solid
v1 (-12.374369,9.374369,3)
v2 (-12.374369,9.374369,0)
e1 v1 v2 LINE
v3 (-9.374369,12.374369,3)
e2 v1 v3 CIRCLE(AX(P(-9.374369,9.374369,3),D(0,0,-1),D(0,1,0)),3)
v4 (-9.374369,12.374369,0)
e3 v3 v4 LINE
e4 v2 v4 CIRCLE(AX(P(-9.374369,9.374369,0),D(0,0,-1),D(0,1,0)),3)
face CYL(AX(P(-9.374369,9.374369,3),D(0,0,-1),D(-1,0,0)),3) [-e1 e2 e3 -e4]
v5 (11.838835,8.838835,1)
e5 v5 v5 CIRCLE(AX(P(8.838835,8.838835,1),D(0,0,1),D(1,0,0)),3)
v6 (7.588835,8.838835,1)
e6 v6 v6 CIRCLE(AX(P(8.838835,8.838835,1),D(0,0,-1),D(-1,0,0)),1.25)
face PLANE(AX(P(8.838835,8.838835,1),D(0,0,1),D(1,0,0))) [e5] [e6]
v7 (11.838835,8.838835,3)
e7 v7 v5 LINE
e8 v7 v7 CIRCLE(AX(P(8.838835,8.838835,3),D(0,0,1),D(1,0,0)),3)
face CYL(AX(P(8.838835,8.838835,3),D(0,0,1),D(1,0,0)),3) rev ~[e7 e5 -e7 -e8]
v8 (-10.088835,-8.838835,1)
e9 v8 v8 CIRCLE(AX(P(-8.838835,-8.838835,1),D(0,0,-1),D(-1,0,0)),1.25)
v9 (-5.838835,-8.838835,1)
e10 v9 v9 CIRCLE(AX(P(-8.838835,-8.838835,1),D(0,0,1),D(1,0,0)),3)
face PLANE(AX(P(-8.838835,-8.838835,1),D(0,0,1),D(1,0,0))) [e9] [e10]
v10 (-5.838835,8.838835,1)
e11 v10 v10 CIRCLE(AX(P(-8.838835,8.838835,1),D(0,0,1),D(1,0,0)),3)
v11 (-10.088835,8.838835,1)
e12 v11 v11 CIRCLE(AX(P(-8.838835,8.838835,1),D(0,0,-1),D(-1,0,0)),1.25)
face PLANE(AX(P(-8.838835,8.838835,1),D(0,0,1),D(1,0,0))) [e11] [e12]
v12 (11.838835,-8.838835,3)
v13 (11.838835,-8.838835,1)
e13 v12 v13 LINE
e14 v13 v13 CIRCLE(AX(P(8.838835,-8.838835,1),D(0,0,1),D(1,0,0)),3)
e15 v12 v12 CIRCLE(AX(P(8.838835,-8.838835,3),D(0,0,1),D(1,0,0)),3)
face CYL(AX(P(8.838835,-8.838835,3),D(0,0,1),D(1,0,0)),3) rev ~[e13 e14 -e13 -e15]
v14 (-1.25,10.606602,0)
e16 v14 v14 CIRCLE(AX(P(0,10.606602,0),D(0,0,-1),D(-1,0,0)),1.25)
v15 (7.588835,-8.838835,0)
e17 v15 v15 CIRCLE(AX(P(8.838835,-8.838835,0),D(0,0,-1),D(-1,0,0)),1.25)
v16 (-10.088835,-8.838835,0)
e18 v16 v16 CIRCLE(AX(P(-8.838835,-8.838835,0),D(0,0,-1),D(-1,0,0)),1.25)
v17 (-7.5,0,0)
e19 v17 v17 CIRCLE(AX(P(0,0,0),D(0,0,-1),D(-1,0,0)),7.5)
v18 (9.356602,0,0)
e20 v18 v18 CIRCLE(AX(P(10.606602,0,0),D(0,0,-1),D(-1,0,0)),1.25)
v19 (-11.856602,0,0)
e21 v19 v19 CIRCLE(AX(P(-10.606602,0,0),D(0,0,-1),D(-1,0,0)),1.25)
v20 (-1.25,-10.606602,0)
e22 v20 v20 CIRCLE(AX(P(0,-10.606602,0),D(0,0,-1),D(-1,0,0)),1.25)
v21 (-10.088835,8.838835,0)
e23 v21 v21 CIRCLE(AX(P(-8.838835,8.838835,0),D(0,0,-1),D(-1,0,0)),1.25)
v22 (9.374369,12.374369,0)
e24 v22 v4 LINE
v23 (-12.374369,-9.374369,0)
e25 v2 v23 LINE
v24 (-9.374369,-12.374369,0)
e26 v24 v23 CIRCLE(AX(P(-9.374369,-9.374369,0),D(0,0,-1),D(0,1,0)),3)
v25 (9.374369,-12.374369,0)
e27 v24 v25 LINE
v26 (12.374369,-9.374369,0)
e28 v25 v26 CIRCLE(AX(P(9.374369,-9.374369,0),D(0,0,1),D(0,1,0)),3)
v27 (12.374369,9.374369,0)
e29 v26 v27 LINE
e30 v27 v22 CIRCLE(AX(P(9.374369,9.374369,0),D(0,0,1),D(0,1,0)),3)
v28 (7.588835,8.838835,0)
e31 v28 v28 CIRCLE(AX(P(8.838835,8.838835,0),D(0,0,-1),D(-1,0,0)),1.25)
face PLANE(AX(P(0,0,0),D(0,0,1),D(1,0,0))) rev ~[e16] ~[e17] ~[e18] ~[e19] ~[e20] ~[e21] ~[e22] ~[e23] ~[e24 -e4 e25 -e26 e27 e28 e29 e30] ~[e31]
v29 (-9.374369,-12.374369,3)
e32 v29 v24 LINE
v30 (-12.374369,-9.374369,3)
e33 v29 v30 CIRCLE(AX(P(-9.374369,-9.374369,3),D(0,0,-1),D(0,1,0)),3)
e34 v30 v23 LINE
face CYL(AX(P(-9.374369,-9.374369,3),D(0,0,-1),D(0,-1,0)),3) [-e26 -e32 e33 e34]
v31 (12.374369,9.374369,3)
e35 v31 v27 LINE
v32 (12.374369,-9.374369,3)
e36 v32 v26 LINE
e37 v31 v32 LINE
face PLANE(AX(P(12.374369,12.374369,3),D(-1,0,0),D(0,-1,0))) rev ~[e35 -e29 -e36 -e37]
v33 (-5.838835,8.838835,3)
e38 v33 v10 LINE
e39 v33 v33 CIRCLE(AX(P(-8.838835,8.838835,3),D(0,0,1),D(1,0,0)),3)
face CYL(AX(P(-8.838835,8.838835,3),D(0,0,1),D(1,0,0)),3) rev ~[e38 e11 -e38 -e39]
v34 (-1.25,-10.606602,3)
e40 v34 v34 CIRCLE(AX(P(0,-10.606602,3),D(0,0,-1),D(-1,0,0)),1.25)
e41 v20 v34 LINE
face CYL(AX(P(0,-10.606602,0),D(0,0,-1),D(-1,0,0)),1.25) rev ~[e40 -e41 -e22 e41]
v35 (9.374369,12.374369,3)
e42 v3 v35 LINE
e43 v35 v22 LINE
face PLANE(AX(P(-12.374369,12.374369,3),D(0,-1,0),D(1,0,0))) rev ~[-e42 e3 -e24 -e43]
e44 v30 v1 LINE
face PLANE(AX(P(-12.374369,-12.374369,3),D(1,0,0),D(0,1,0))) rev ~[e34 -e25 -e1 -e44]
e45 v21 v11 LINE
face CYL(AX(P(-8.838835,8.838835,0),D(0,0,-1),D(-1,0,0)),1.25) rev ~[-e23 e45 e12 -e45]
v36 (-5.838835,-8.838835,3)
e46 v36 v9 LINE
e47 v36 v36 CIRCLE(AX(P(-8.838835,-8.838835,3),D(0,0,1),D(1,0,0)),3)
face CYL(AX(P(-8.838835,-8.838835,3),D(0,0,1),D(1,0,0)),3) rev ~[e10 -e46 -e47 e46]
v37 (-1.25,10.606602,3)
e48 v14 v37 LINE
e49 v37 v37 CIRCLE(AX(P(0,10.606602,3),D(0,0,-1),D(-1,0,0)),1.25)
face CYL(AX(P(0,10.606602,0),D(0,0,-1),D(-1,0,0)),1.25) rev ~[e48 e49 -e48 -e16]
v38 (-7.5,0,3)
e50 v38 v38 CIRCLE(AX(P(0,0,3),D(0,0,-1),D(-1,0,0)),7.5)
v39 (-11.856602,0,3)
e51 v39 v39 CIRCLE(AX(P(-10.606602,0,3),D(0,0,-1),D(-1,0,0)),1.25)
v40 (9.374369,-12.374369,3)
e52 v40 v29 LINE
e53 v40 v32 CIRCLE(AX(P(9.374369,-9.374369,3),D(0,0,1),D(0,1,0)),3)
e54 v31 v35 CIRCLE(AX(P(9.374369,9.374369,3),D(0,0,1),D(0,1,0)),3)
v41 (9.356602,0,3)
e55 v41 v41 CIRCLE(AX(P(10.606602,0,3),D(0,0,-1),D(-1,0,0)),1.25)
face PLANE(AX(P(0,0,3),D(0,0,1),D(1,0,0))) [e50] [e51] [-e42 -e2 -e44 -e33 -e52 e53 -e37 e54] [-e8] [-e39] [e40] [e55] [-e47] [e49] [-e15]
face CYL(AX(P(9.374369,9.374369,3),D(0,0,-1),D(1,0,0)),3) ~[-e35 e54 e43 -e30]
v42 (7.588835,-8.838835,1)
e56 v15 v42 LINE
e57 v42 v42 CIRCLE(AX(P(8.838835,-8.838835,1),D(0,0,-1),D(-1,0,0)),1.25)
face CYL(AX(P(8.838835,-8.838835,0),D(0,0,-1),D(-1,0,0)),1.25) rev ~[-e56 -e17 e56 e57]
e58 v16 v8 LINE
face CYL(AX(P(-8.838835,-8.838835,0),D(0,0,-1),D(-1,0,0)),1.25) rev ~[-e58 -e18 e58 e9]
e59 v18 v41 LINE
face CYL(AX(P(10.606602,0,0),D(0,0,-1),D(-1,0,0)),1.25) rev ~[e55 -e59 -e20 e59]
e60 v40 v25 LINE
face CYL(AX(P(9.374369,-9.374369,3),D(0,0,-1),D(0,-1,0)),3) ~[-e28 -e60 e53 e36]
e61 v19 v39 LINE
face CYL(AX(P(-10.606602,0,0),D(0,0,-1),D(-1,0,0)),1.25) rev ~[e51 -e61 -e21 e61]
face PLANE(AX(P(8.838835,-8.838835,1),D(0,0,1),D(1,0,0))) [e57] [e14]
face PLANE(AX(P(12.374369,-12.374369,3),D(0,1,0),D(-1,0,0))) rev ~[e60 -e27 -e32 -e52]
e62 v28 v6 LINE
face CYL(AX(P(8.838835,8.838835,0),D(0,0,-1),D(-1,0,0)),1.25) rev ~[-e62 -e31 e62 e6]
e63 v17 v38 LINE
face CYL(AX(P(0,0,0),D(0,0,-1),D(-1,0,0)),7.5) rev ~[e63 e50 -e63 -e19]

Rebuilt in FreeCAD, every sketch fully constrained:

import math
import FreeCAD as App
import Part
import Sketcher
Q = App.Units.Quantity


def edges_at(feature, points):
    """Names of the edges that pass closest to the given points."""
    edges = feature.Shape.Edges
    near = lambda p: min(range(len(edges)), key=lambda i: edges[i].distToShape(Part.Vertex(*p))[0])
    return sorted({f"Edge{near(p) + 1}" for p in points})

doc = App.newDocument("Part")
params = doc.addObject("Spreadsheet::Sheet", "Params")
for row, (alias, value) in enumerate([
    ("sketch1_diameter", "35 mm"),
    ("pad1_length", "3 mm"),
    ("sketch2_diameter", "2.5 mm"),
    ("sketch3_diameter", "2.5 mm"),
    ("sketch4_diameter", "2.5 mm"),
    ("sketch5_diameter", "2.5 mm"),
    ("sketch6_diameter", "2.5 mm"),
    ("sketch7_diameter", "2.5 mm"),
    ("sketch8_diameter", "2.5 mm"),
    ("sketch9_diameter", "2.5 mm"),
    ("sketch10_diameter", "15 mm"),
    ("sketch11_radius", "17.5 mm"),
    ("sketch12_radius", "17.5 mm"),
    ("sketch13_radius", "17.5 mm"),
    ("sketch14_radius", "17.5 mm"),
    ("fillet_radius", "3 mm"),
    ("sketch15_diameter", "6 mm"),
    ("pocket14_length", "2 mm"),
], start=1):
    params.set(f"A{row}", alias)
    params.set(f"B{row}", "=" + value)
    params.setAlias(f"B{row}", alias)

body = doc.addObject("PartDesign::Body", "Body")

sketch1 = doc.addObject("Sketcher::SketchObject", "Sketch")
body.addObject(sketch1)
sketch1.AttachmentSupport = (doc.XY_Plane, [""])
sketch1.MapMode = "FlatFace"
sketch1.addGeometry(Part.Circle(App.Vector(0, 0, 0), App.Vector(0, 0, 1), 18), False)
sketch1.addConstraint(Sketcher.Constraint("Coincident", 0, 3, -1, 1))
sketch1.addConstraint(Sketcher.Constraint("Diameter", 0, Q("35 mm")))
sketch1.setExpression("Constraints[1]", "Params.sketch1_diameter")
pad1 = doc.addObject("PartDesign::Pad", "Pad")
body.addObject(pad1)
pad1.Profile = sketch1
pad1.setExpression("Length", "Params.pad1_length")

sketch2 = doc.addObject("Sketcher::SketchObject", "Sketch001")
body.addObject(sketch2)
sketch2.AttachmentSupport = (doc.XY_Plane, [""])
sketch2.MapMode = "FlatFace"
sketch2.addGeometry(Part.Circle(App.Vector(8.8, 8.8, 0), App.Vector(0, 0, 1), 1.2), False)
sketch2.addConstraint(Sketcher.Constraint("Diameter", 0, Q("2.5 mm")))
sketch2.addConstraint(Sketcher.Constraint("DistanceX", -1, 1, 0, 3, Q("8.838835 mm")))
sketch2.addConstraint(Sketcher.Constraint("DistanceY", -1, 1, 0, 3, Q("8.838835 mm")))
sketch2.setExpression("Constraints[0]", "Params.sketch2_diameter")
pocket1 = doc.addObject("PartDesign::Pocket", "Pocket")
body.addObject(pocket1)
pocket1.Profile = sketch2
pocket1.Type = "UpToFirst"
pocket1.Reversed = True

sketch3 = doc.addObject("Sketcher::SketchObject", "Sketch002")
body.addObject(sketch3)
sketch3.AttachmentSupport = (doc.XY_Plane, [""])
sketch3.MapMode = "FlatFace"
sketch3.addGeometry(Part.Circle(App.Vector(-8.8, 8.8, 0), App.Vector(0, 0, 1), 1.2), False)
sketch3.addConstraint(Sketcher.Constraint("Diameter", 0, Q("2.5 mm")))
sketch3.addConstraint(Sketcher.Constraint("DistanceX", 0, 3, -1, 1, Q("8.838835 mm")))
sketch3.addConstraint(Sketcher.Constraint("DistanceY", -1, 1, 0, 3, Q("8.838835 mm")))
sketch3.setExpression("Constraints[0]", "Params.sketch3_diameter")
pocket2 = doc.addObject("PartDesign::Pocket", "Pocket001")
body.addObject(pocket2)
pocket2.Profile = sketch3
pocket2.Type = "UpToFirst"
pocket2.Reversed = True

sketch4 = doc.addObject("Sketcher::SketchObject", "Sketch003")
body.addObject(sketch4)
sketch4.AttachmentSupport = (doc.XY_Plane, [""])
sketch4.MapMode = "FlatFace"
sketch4.addGeometry(Part.Circle(App.Vector(-8.8, -8.8, 0), App.Vector(0, 0, 1), 1.2), False)
sketch4.addConstraint(Sketcher.Constraint("Diameter", 0, Q("2.5 mm")))
sketch4.addConstraint(Sketcher.Constraint("DistanceX", 0, 3, -1, 1, Q("8.838835 mm")))
sketch4.addConstraint(Sketcher.Constraint("DistanceY", 0, 3, -1, 1, Q("8.838835 mm")))
sketch4.setExpression("Constraints[0]", "Params.sketch4_diameter")
pocket3 = doc.addObject("PartDesign::Pocket", "Pocket002")
body.addObject(pocket3)
pocket3.Profile = sketch4
pocket3.Type = "UpToFirst"
pocket3.Reversed = True

sketch5 = doc.addObject("Sketcher::SketchObject", "Sketch004")
body.addObject(sketch5)
sketch5.AttachmentSupport = (doc.XY_Plane, [""])
sketch5.MapMode = "FlatFace"
sketch5.addGeometry(Part.Circle(App.Vector(8.8, -8.8, 0), App.Vector(0, 0, 1), 1.2), False)
sketch5.addConstraint(Sketcher.Constraint("Diameter", 0, Q("2.5 mm")))
sketch5.addConstraint(Sketcher.Constraint("DistanceX", -1, 1, 0, 3, Q("8.838835 mm")))
sketch5.addConstraint(Sketcher.Constraint("DistanceY", 0, 3, -1, 1, Q("8.838835 mm")))
sketch5.setExpression("Constraints[0]", "Params.sketch5_diameter")
pocket4 = doc.addObject("PartDesign::Pocket", "Pocket003")
body.addObject(pocket4)
pocket4.Profile = sketch5
pocket4.Type = "UpToFirst"
pocket4.Reversed = True

sketch6 = doc.addObject("Sketcher::SketchObject", "Sketch005")
body.addObject(sketch6)
sketch6.AttachmentSupport = (doc.XY_Plane, [""])
sketch6.MapMode = "FlatFace"
sketch6.addGeometry(Part.Circle(App.Vector(0, 10.6, 0), App.Vector(0, 0, 1), 1.2), False)
sketch6.addConstraint(Sketcher.Constraint("PointOnObject", 0, 3, -2))
sketch6.addConstraint(Sketcher.Constraint("Diameter", 0, Q("2.5 mm")))
sketch6.addConstraint(Sketcher.Constraint("DistanceY", -1, 1, 0, 3, Q("10.606602 mm")))
sketch6.setExpression("Constraints[1]", "Params.sketch6_diameter")
pocket5 = doc.addObject("PartDesign::Pocket", "Pocket004")
body.addObject(pocket5)
pocket5.Profile = sketch6
pocket5.Type = "UpToFirst"
pocket5.Reversed = True

sketch7 = doc.addObject("Sketcher::SketchObject", "Sketch006")
body.addObject(sketch7)
sketch7.AttachmentSupport = (doc.XY_Plane, [""])
sketch7.MapMode = "FlatFace"
sketch7.addGeometry(Part.Circle(App.Vector(10.6, 0, 0), App.Vector(0, 0, 1), 1.2), False)
sketch7.addConstraint(Sketcher.Constraint("PointOnObject", 0, 3, -1))
sketch7.addConstraint(Sketcher.Constraint("Diameter", 0, Q("2.5 mm")))
sketch7.addConstraint(Sketcher.Constraint("DistanceX", -1, 1, 0, 3, Q("10.606602 mm")))
sketch7.setExpression("Constraints[1]", "Params.sketch7_diameter")
pocket6 = doc.addObject("PartDesign::Pocket", "Pocket005")
body.addObject(pocket6)
pocket6.Profile = sketch7
pocket6.Type = "UpToFirst"
pocket6.Reversed = True

sketch8 = doc.addObject("Sketcher::SketchObject", "Sketch007")
body.addObject(sketch8)
sketch8.AttachmentSupport = (doc.XY_Plane, [""])
sketch8.MapMode = "FlatFace"
sketch8.addGeometry(Part.Circle(App.Vector(0, -10.6, 0), App.Vector(0, 0, 1), 1.2), False)
sketch8.addConstraint(Sketcher.Constraint("PointOnObject", 0, 3, -2))
sketch8.addConstraint(Sketcher.Constraint("Diameter", 0, Q("2.5 mm")))
sketch8.addConstraint(Sketcher.Constraint("DistanceY", 0, 3, -1, 1, Q("10.606602 mm")))
sketch8.setExpression("Constraints[1]", "Params.sketch8_diameter")
pocket7 = doc.addObject("PartDesign::Pocket", "Pocket006")
body.addObject(pocket7)
pocket7.Profile = sketch8
pocket7.Type = "UpToFirst"
pocket7.Reversed = True

sketch9 = doc.addObject("Sketcher::SketchObject", "Sketch008")
body.addObject(sketch9)
sketch9.AttachmentSupport = (doc.XY_Plane, [""])
sketch9.MapMode = "FlatFace"
sketch9.addGeometry(Part.Circle(App.Vector(-10.6, 0, 0), App.Vector(0, 0, 1), 1.2), False)
sketch9.addConstraint(Sketcher.Constraint("PointOnObject", 0, 3, -1))
sketch9.addConstraint(Sketcher.Constraint("Diameter", 0, Q("2.5 mm")))
sketch9.addConstraint(Sketcher.Constraint("DistanceX", 0, 3, -1, 1, Q("10.606602 mm")))
sketch9.setExpression("Constraints[1]", "Params.sketch9_diameter")
pocket8 = doc.addObject("PartDesign::Pocket", "Pocket007")
body.addObject(pocket8)
pocket8.Profile = sketch9
pocket8.Type = "UpToFirst"
pocket8.Reversed = True

sketch10 = doc.addObject("Sketcher::SketchObject", "Sketch009")
body.addObject(sketch10)
sketch10.AttachmentSupport = (doc.XY_Plane, [""])
sketch10.MapMode = "FlatFace"
sketch10.addGeometry(Part.Circle(App.Vector(0, 0, 0), App.Vector(0, 0, 1), 8), False)
sketch10.addConstraint(Sketcher.Constraint("Coincident", 0, 3, -1, 1))
sketch10.addConstraint(Sketcher.Constraint("Diameter", 0, Q("15 mm")))
sketch10.setExpression("Constraints[1]", "Params.sketch10_diameter")
pocket9 = doc.addObject("PartDesign::Pocket", "Pocket008")
body.addObject(pocket9)
pocket9.Profile = sketch10
pocket9.Type = "UpToFirst"
pocket9.Reversed = True

sketch11 = doc.addObject("Sketcher::SketchObject", "Sketch010")
body.addObject(sketch11)
sketch11.AttachmentSupport = (doc.XY_Plane, [""])
sketch11.MapMode = "FlatFace"
sketch11.AttachmentOffset = App.Placement(App.Vector(0, 0, 3), App.Rotation())
sketch11.addGeometry(Part.LineSegment(App.Vector(-12, 12, 0), App.Vector(12, 12, 0)), False)
sketch11.addGeometry(Part.ArcOfCircle(Part.Circle(App.Vector(0, 0, 0), App.Vector(0, 0, 1), 18), math.radians(45), math.radians(135)), False)
sketch11.addConstraint(Sketcher.Constraint("Coincident", 0, 1, 1, 2))
sketch11.addConstraint(Sketcher.Constraint("Coincident", 1, 1, 0, 2))
sketch11.addConstraint(Sketcher.Constraint("Horizontal", 0))
sketch11.addConstraint(Sketcher.Constraint("Coincident", 1, 3, -1, 1))
sketch11.addConstraint(Sketcher.Constraint("Radius", 1, Q("17.5 mm")))
sketch11.addConstraint(Sketcher.Constraint("DistanceX", 0, 1, 0, 2, Q("24.748737 mm")))
sketch11.setExpression("Constraints[4]", "Params.sketch11_radius")
pocket10 = doc.addObject("PartDesign::Pocket", "Pocket009")
body.addObject(pocket10)
pocket10.Profile = sketch11
pocket10.Type = "UpToFirst"

sketch12 = doc.addObject("Sketcher::SketchObject", "Sketch011")
body.addObject(sketch12)
sketch12.AttachmentSupport = (doc.XY_Plane, [""])
sketch12.MapMode = "FlatFace"
sketch12.AttachmentOffset = App.Placement(App.Vector(0, 0, 3), App.Rotation())
sketch12.addGeometry(Part.LineSegment(App.Vector(12, 12, 0), App.Vector(12, -12, 0)), False)
sketch12.addGeometry(Part.ArcOfCircle(Part.Circle(App.Vector(0, 0, 0), App.Vector(0, 0, 1), 18), math.radians(-45), math.radians(0)), False)
sketch12.addGeometry(Part.ArcOfCircle(Part.Circle(App.Vector(0, 0, 0), App.Vector(0, 0, 1), 18), math.radians(0), math.radians(45)), False)
sketch12.addConstraint(Sketcher.Constraint("Coincident", 0, 2, 1, 1))
sketch12.addConstraint(Sketcher.Constraint("Tangent", 1, 2, 2, 1))
sketch12.addConstraint(Sketcher.Constraint("Coincident", 2, 2, 0, 1))
sketch12.addConstraint(Sketcher.Constraint("Vertical", 0))
sketch12.addConstraint(Sketcher.Constraint("Coincident", 1, 3, -1, 1))
sketch12.addConstraint(Sketcher.Constraint("Equal", 1, 2))
sketch12.addConstraint(Sketcher.Constraint("PointOnObject", 1, 2, -1))
sketch12.addConstraint(Sketcher.Constraint("Radius", 1, Q("17.5 mm")))
sketch12.addConstraint(Sketcher.Constraint("DistanceY", 0, 2, 0, 1, Q("24.748737 mm")))
sketch12.setExpression("Constraints[7]", "Params.sketch12_radius")
pocket11 = doc.addObject("PartDesign::Pocket", "Pocket010")
body.addObject(pocket11)
pocket11.Profile = sketch12
pocket11.Type = "UpToFirst"

sketch13 = doc.addObject("Sketcher::SketchObject", "Sketch012")
body.addObject(sketch13)
sketch13.AttachmentSupport = (doc.XY_Plane, [""])
sketch13.MapMode = "FlatFace"
sketch13.AttachmentOffset = App.Placement(App.Vector(0, 0, 3), App.Rotation())
sketch13.addGeometry(Part.ArcOfCircle(Part.Circle(App.Vector(0, 0, 0), App.Vector(0, 0, 1), 18), math.radians(-135), math.radians(-45)), False)
sketch13.addGeometry(Part.LineSegment(App.Vector(12, -12, 0), App.Vector(-12, -12, 0)), False)
sketch13.addConstraint(Sketcher.Constraint("Coincident", 0, 1, 1, 2))
sketch13.addConstraint(Sketcher.Constraint("Coincident", 1, 1, 0, 2))
sketch13.addConstraint(Sketcher.Constraint("Horizontal", 1))
sketch13.addConstraint(Sketcher.Constraint("Coincident", 0, 3, -1, 1))
sketch13.addConstraint(Sketcher.Constraint("Radius", 0, Q("17.5 mm")))
sketch13.addConstraint(Sketcher.Constraint("DistanceX", 1, 2, 1, 1, Q("24.748737 mm")))
sketch13.setExpression("Constraints[4]", "Params.sketch13_radius")
pocket12 = doc.addObject("PartDesign::Pocket", "Pocket011")
body.addObject(pocket12)
pocket12.Profile = sketch13
pocket12.Type = "UpToFirst"

sketch14 = doc.addObject("Sketcher::SketchObject", "Sketch013")
body.addObject(sketch14)
sketch14.AttachmentSupport = (doc.XY_Plane, [""])
sketch14.MapMode = "FlatFace"
sketch14.AttachmentOffset = App.Placement(App.Vector(0, 0, 3), App.Rotation())
sketch14.addGeometry(Part.ArcOfCircle(Part.Circle(App.Vector(0, 0, 0), App.Vector(0, 0, 1), 18), math.radians(135), math.radians(225)), False)
sketch14.addGeometry(Part.LineSegment(App.Vector(-12, -12, 0), App.Vector(-12, 12, 0)), False)
sketch14.addConstraint(Sketcher.Constraint("Coincident", 0, 1, 1, 2))
sketch14.addConstraint(Sketcher.Constraint("Coincident", 1, 1, 0, 2))
sketch14.addConstraint(Sketcher.Constraint("Vertical", 1))
sketch14.addConstraint(Sketcher.Constraint("Coincident", 0, 3, -1, 1))
sketch14.addConstraint(Sketcher.Constraint("Radius", 0, Q("17.5 mm")))
sketch14.addConstraint(Sketcher.Constraint("DistanceY", 1, 1, 1, 2, Q("24.748737 mm")))
sketch14.setExpression("Constraints[4]", "Params.sketch14_radius")
pocket13 = doc.addObject("PartDesign::Pocket", "Pocket012")
body.addObject(pocket13)
pocket13.Profile = sketch14
pocket13.Type = "UpToFirst"
doc.recompute()

fillet = doc.addObject("PartDesign::Fillet", "Fillet")
body.addObject(fillet)
fillet.Base = (pocket13, edges_at(pocket13, [
    (12.374, 12.374, 1.5),
    (-12.374, 12.374, 1.5),
    (-12.374, -12.374, 1.5),
    (12.374, -12.374, 1.5),
]))
fillet.setExpression("Radius", "Params.fillet_radius")

sketch15 = doc.addObject("Sketcher::SketchObject", "Sketch014")
body.addObject(sketch15)
sketch15.AttachmentSupport = (doc.XY_Plane, [""])
sketch15.MapMode = "FlatFace"
sketch15.AttachmentOffset = App.Placement(App.Vector(0, 0, 3), App.Rotation())
sketch15.addGeometry(Part.Circle(App.Vector(-8.8, 8.8, 0), App.Vector(0, 0, 1), 3), False)
sketch15.addGeometry(Part.Circle(App.Vector(8.8, 8.8, 0), App.Vector(0, 0, 1), 3), False)
sketch15.addGeometry(Part.Circle(App.Vector(8.8, -8.8, 0), App.Vector(0, 0, 1), 3), False)
sketch15.addGeometry(Part.Circle(App.Vector(-8.8, -8.8, 0), App.Vector(0, 0, 1), 3), False)
sketch15.addConstraint(Sketcher.Constraint("Equal", 0, 1))
sketch15.addConstraint(Sketcher.Constraint("Equal", 1, 2))
sketch15.addConstraint(Sketcher.Constraint("Equal", 2, 3))
sketch15.addConstraint(Sketcher.Constraint("Symmetric", 0, 3, 2, 3, -1, 1))
sketch15.addConstraint(Sketcher.Constraint("Symmetric", 1, 3, 3, 3, -1, 1))
sketch15.addConstraint(Sketcher.Constraint("Symmetric", 0, 3, 1, 3, -2))
sketch15.addConstraint(Sketcher.Constraint("Diameter", 0, Q("6 mm")))
sketch15.addConstraint(Sketcher.Constraint("DistanceX", 0, 3, 1, 3, Q("17.67767 mm")))
sketch15.addConstraint(Sketcher.Constraint("DistanceY", 2, 3, 1, 3, Q("17.67767 mm")))
sketch15.setExpression("Constraints[6]", "Params.sketch15_diameter")
pocket14 = doc.addObject("PartDesign::Pocket", "Pocket013")
body.addObject(pocket14)
pocket14.Profile = sketch15
pocket14.setExpression("Length", "Params.pocket14_length")

doc.recompute()
